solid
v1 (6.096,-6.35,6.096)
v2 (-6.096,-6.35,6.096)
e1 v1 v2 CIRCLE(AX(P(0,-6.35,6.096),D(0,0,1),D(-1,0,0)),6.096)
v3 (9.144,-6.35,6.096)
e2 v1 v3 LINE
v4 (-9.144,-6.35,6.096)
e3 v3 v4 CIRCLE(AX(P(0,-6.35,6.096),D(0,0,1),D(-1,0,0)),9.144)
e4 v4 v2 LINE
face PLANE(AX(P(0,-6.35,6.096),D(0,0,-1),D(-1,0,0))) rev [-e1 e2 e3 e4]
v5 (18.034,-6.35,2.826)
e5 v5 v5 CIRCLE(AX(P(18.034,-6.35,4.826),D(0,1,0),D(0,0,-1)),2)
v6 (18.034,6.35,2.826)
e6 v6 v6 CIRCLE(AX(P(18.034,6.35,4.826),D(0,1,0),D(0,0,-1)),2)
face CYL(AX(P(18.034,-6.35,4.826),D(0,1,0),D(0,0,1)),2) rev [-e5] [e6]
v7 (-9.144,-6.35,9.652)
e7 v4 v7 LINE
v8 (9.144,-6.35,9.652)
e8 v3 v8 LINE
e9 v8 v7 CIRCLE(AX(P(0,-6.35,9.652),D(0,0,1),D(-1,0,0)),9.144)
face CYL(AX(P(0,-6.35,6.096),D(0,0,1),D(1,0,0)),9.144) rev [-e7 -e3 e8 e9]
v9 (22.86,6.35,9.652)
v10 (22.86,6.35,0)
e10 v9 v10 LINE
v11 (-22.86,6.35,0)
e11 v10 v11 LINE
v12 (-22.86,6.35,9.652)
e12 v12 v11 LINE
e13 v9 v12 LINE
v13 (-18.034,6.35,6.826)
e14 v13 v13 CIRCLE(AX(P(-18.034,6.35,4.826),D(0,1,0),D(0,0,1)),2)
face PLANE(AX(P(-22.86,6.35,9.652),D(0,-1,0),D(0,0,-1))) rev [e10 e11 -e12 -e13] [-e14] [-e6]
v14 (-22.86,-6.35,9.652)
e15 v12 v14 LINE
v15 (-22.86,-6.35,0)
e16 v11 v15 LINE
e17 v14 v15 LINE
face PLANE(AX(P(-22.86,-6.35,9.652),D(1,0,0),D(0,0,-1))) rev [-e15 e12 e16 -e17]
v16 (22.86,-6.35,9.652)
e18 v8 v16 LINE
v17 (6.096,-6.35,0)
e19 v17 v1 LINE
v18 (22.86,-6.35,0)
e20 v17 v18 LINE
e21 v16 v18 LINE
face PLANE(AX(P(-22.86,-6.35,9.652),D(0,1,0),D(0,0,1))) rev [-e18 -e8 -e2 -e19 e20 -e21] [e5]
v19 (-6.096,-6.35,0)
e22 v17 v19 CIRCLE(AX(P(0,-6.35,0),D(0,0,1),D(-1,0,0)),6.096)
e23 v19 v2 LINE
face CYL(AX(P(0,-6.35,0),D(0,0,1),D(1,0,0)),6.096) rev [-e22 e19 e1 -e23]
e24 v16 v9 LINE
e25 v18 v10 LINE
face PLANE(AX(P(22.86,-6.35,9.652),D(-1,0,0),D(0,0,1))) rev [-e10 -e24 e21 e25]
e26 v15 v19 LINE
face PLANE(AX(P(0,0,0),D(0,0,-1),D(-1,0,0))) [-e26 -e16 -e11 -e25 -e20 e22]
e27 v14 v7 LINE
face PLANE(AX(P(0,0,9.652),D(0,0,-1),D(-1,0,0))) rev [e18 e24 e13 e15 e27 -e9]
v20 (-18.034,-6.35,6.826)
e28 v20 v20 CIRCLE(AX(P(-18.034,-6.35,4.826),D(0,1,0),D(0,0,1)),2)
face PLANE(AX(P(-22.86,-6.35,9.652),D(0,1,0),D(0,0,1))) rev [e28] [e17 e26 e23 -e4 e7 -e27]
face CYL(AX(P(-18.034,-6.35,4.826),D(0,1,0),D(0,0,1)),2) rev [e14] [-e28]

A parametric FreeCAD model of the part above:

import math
import FreeCAD as App
import Part
import Sketcher
Q = App.Units.Quantity


def add_polygon(sketch, points):
    """Adds a closed chain of lines whose ends are joined by coincident constraints."""
    first, n = sketch.GeometryCount, len(points)
    for a, b in zip(points, points[1:] + points[:1]):
        sketch.addGeometry(Part.LineSegment(App.Vector(*a, 0), App.Vector(*b, 0)), False)
    for i in range(n):
        sketch.addConstraint(Sketcher.Constraint("Coincident", first + i, 2, first + (i + 1) % n, 1))

doc = App.newDocument("Part")
body = doc.addObject("PartDesign::Body", "Body")

# Sketch on XY plane
sketch1 = body.newObject("Sketcher::SketchObject", "Sketch")
sketch1.AttachmentSupport = (doc.getObject("XY_Plane"), [""])
sketch1.MapMode = "FlatFace"
add_polygon(sketch1, [(-23, 6), (-23, -6), (23, -6), (23, 6)])  # lines 0-3
sketch1.addConstraint([
    Sketcher.Constraint("Vertical", 0),
    Sketcher.Constraint("Horizontal", 1),
    Sketcher.Constraint("Vertical", 2),
    Sketcher.Constraint("Horizontal", 3),
    Sketcher.Constraint("Symmetric", 0, 2, 2, 2, -1, 1),
    Sketcher.Constraint("DistanceX", 1, 1, 1, 2, Q("1.8 in")),
    Sketcher.Constraint("DistanceY", 0, 2, 0, 1, Q("0.5 in")),
])
pad1 = body.newObject("PartDesign::Pad", "Pad")
pad1.Profile = sketch1
pad1.Length = Q("0.38 in")

# Sketch on XY plane
sketch2 = body.newObject("Sketcher::SketchObject", "Sketch001")
sketch2.AttachmentSupport = (doc.getObject("XY_Plane"), [""])
sketch2.MapMode = "FlatFace"
sketch2.AttachmentOffset = App.Placement(App.Vector(0, 0, 0.38 * 25.4), App.Rotation())
sketch2.addGeometry([
    Part.LineSegment(App.Vector(-9, -6, 0), App.Vector(9, -6, 0)),
    Part.ArcOfCircle(Part.Circle(App.Vector(0, -6, 0), App.Vector(0, 0, 1), 9), math.radians(0), math.radians(180)),
], False)
sketch2.addConstraint([
    Sketcher.Constraint("Coincident", 0, 1, 1, 2),
    Sketcher.Constraint("Coincident", 1, 1, 0, 2),
    Sketcher.Constraint("Horizontal", 0),
    Sketcher.Constraint("PointOnObject", 1, 3, -2),
    Sketcher.Constraint("Horizontal", 1, 3, 0, 1),
    Sketcher.Constraint("Radius", 1, Q("0.36 in")),
    Sketcher.Constraint("DistanceY", 1, 3, -1, 1, Q("0.25 in")),
])
pocket1 = body.newObject("PartDesign::Pocket", "Pocket")
pocket1.Profile = sketch2
pocket1.Length = Q("0.14 in")

# Sketch on XY plane
sketch3 = body.newObject("Sketcher::SketchObject", "Sketch002")
sketch3.AttachmentSupport = (doc.getObject("XY_Plane"), [""])
sketch3.MapMode = "FlatFace"
sketch3.AttachmentOffset = App.Placement(App.Vector(0, 0, 0.24 * 25.4), App.Rotation())
sketch3.addGeometry([
    Part.LineSegment(App.Vector(-6, -6, 0), App.Vector(6, -6, 0)),
    Part.ArcOfCircle(Part.Circle(App.Vector(0, -6, 0), App.Vector(0, 0, 1), 6), math.radians(0), math.radians(180)),
], False)
sketch3.addConstraint([
    Sketcher.Constraint("Coincident", 0, 1, 1, 2),
    Sketcher.Constraint("Coincident", 1, 1, 0, 2),
    Sketcher.Constraint("Horizontal", 0),
    Sketcher.Constraint("PointOnObject", 1, 3, -2),
    Sketcher.Constraint("Horizontal", 1, 3, 0, 1),
    Sketcher.Constraint("Radius", 1, Q("0.24 in")),
    Sketcher.Constraint("DistanceY", 1, 3, -1, 1, Q("0.25 in")),
])
pocket2 = body.newObject("PartDesign::Pocket", "Pocket001")
pocket2.Profile = sketch3
pocket2.Type = "ThroughAll"

# Sketch on XZ plane
sketch4 = body.newObject("Sketcher::SketchObject", "Sketch003")
sketch4.AttachmentSupport = (doc.getObject("XZ_Plane"), [""])
sketch4.MapMode = "FlatFace"
sketch4.AttachmentOffset = App.Placement(App.Vector(0, 0, -0.25 * 25.4), App.Rotation())
sketch4.addGeometry([
    Part.Circle(App.Vector(-18, 4.8, 0), App.Vector(0, 0, 1), 2),
    Part.Circle(App.Vector(18, 4.8, 0), App.Vector(0, 0, 1), 2),
], False)
sketch4.addConstraint([
    Sketcher.Constraint("Equal", 0, 1),
    Sketcher.Constraint("Symmetric", 0, 3, 1, 3, -2),
    Sketcher.Constraint("Diameter", 0, 4.0),
    Sketcher.Constraint("DistanceX", 0, 3, -1, 1, Q("0.71 in")),
    Sketcher.Constraint("DistanceY", -1, 1, 0, 3, Q("0.19 in")),
])
pocket3 = body.newObject("PartDesign::Pocket", "Pocket002")
pocket3.Profile = sketch4
pocket3.Type = "ThroughAll"
pocket3.Reversed = True

doc.recompute()
